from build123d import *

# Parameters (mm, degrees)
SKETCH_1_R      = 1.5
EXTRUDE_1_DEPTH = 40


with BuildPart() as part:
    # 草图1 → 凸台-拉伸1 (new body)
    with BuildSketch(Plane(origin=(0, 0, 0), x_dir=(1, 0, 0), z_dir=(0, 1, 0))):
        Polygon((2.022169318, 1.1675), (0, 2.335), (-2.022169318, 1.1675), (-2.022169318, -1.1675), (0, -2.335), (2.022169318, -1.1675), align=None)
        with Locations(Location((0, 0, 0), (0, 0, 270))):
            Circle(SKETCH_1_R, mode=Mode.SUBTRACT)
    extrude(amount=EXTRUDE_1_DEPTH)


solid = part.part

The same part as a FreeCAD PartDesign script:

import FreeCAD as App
import Part
import Sketcher
Q = App.Units.Quantity


def add_polygon(sketch, points):
    """Adds a closed chain of lines whose ends are joined by coincident constraints."""
    first, n = sketch.GeometryCount, len(points)
    for a, b in zip(points, points[1:] + points[:1]):
        sketch.addGeometry(Part.LineSegment(App.Vector(*a, 0), App.Vector(*b, 0)), False)
    for i in range(n):
        sketch.addConstraint(Sketcher.Constraint("Coincident", first + i, 2, first + (i + 1) % n, 1))

doc = App.newDocument("Part")
body = doc.addObject("PartDesign::Body", "Body")

# Sketch on XZ plane
sketch1 = body.newObject("Sketcher::SketchObject", "Sketch")
sketch1.AttachmentSupport = (doc.getObject("XZ_Plane"), [""])
sketch1.MapMode = "FlatFace"
add_polygon(sketch1, [(2.022169, -1.1675), (0, -2.335), (-2.022169, -1.1675), (-2.022169, 1.1675), (0, 2.335), (2.022169, 1.1675)])  # lines 0-5
sketch1.addGeometry(Part.Circle(App.Vector(0, 0, 0), App.Vector(0, 0, 1), 1.5), False)  # 6
sketch1.addConstraint(Sketcher.Constraint("Vertical", 2))
sketch1.addConstraint(Sketcher.Constraint("Vertical", 5))
sketch1.addConstraint(Sketcher.Constraint("Coincident", 6, 3, -1, 1))
sketch1.addConstraint(Sketcher.Constraint("Symmetric", 0, 2, 3, 2, -1, 1))
sketch1.addConstraint(Sketcher.Constraint("Symmetric", 1, 2, 4, 2, -1, 1))
sketch1.addConstraint(Sketcher.Constraint("PointOnObject", 0, 2, -2))
sketch1.addConstraint(Sketcher.Constraint("Parallel", 0, 3))
sketch1.addConstraint(Sketcher.Constraint("Horizontal", 2, 2, 4, 2))
sketch1.addConstraint(Sketcher.Constraint("Diameter", 6, 3.0))
sketch1.addConstraint(Sketcher.Constraint("Angle", 0, Q("-150 deg")))
sketch1.addConstraint(Sketcher.Constraint("DistanceY", 2, 1, 2, 2, 2.335))
sketch1.addConstraint(Sketcher.Constraint("DistanceY", 0, 2, 3, 2, 4.67))
pad1 = body.newObject("PartDesign::Pad", "Pad")
pad1.Profile = sketch1
pad1.Length = 40
pad1.Reversed = True

doc.recompute()
